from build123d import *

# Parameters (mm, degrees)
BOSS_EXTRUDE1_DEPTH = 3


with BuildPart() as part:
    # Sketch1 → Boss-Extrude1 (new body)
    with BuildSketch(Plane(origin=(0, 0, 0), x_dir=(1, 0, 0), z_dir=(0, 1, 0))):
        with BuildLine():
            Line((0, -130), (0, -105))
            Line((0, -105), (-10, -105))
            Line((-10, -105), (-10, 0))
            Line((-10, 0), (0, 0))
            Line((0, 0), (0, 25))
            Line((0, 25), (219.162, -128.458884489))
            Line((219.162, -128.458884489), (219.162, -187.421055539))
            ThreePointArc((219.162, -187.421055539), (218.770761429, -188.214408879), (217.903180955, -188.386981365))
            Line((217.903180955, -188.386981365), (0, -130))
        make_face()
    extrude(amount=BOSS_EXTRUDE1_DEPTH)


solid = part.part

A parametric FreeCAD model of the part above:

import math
import FreeCAD as App
import Part
import Sketcher

V = App.Vector
Q = App.Units.Quantity

doc = App.newDocument("Part")
params = doc.addObject("Spreadsheet::Sheet", "Params")
for row, (alias, value) in enumerate([
    ("sketch1_radius", "1 mm"),
    ("sketch1_width", "10 mm"),
    ("sketch1_height", "25 mm"),
    ("sketch1_height2", "105 mm"),
    ("pad1_length", "3 mm"),
], start=1):
    params.set(f"A{row}", alias)
    params.set(f"B{row}", "=" + value)
    params.setAlias(f"B{row}", alias)

body = doc.addObject("PartDesign::Body", "Body")

sketch1 = body.newObject("Sketcher::SketchObject", "Sketch")
sketch1.AttachmentSupport = (doc.getObject("XZ_Plane"), [""])
sketch1.MapMode = "FlatFace"
sketch1.addGeometry([
    Part.LineSegment(V(0, 105, 0), V(0, 130, 0)),
    Part.LineSegment(V(0, 130, 0), V(217.9, 188.4, 0)),
    Part.ArcOfCircle(Part.Circle(V(218.2, 187.4, 0), V(0, 0, 1), 1), math.radians(0), math.radians(105)),
    Part.LineSegment(V(219.2, 187.4, 0), V(219.2, 128.5, 0)),
    Part.LineSegment(V(219.2, 128.5, 0), V(0, -25, 0)),
    Part.LineSegment(V(0, -25, 0), V(0, 0, 0)),
    Part.LineSegment(V(0, 0, 0), V(-10, 0, 0)),
    Part.LineSegment(V(-10, 0, 0), V(-10, 105, 0)),
    Part.LineSegment(V(-10, 105, 0), V(0, 105, 0)),
], False)
sketch1.addConstraint([
    Sketcher.Constraint("Coincident", 0, 2, 1, 1),
    Sketcher.Constraint("Tangent", 1, 2, 2, 2),
    Sketcher.Constraint("Tangent", 2, 1, 3, 1),
    Sketcher.Constraint("Coincident", 3, 2, 4, 1),
    Sketcher.Constraint("Coincident", 4, 2, 5, 1),
    Sketcher.Constraint("Coincident", 5, 2, 6, 1),
    Sketcher.Constraint("Coincident", 6, 2, 7, 1),
    Sketcher.Constraint("Coincident", 7, 2, 8, 1),
    Sketcher.Constraint("Coincident", 8, 2, 0, 1),
    Sketcher.Constraint("Vertical", 0),
    Sketcher.Constraint("Vertical", 3),
    Sketcher.Constraint("Vertical", 5),
    Sketcher.Constraint("Horizontal", 6),
    Sketcher.Constraint("Vertical", 7),
    Sketcher.Constraint("Horizontal", 8),
    Sketcher.Constraint("Coincident", 5, 2, -1, 1),
    Sketcher.Constraint("PointOnObject", 0, 2, -2),
    Sketcher.Constraint("Equal", 0, 5),
    Sketcher.Constraint("Radius", 2, Q("1 mm")),
    Sketcher.Constraint("DistanceX", 6, 2, 6, 1, Q("10 mm")),
    Sketcher.Constraint("DistanceY", 0, 1, 0, 2, Q("25 mm")),
    Sketcher.Constraint("DistanceY", 7, 1, 7, 2, Q("105 mm")),
    Sketcher.Constraint("Angle", 1, Q("15 deg")),
    Sketcher.Constraint("Angle", 4, Q("-145 deg")),
    Sketcher.Constraint("DistanceX", -1, 1, 2, 3, Q("218.162 mm")),
])
sketch1.setExpression("Constraints[18]", "Params.sketch1_radius")
sketch1.setExpression("Constraints[19]", "Params.sketch1_width")
sketch1.setExpression("Constraints[20]", "Params.sketch1_height")
sketch1.setExpression("Constraints[21]", "Params.sketch1_height2")
pad1 = body.newObject("PartDesign::Pad", "Pad")
pad1.Profile = sketch1
pad1.setExpression("Length", "Params.pad1_length")
pad1.Reversed = True

doc.recompute()
